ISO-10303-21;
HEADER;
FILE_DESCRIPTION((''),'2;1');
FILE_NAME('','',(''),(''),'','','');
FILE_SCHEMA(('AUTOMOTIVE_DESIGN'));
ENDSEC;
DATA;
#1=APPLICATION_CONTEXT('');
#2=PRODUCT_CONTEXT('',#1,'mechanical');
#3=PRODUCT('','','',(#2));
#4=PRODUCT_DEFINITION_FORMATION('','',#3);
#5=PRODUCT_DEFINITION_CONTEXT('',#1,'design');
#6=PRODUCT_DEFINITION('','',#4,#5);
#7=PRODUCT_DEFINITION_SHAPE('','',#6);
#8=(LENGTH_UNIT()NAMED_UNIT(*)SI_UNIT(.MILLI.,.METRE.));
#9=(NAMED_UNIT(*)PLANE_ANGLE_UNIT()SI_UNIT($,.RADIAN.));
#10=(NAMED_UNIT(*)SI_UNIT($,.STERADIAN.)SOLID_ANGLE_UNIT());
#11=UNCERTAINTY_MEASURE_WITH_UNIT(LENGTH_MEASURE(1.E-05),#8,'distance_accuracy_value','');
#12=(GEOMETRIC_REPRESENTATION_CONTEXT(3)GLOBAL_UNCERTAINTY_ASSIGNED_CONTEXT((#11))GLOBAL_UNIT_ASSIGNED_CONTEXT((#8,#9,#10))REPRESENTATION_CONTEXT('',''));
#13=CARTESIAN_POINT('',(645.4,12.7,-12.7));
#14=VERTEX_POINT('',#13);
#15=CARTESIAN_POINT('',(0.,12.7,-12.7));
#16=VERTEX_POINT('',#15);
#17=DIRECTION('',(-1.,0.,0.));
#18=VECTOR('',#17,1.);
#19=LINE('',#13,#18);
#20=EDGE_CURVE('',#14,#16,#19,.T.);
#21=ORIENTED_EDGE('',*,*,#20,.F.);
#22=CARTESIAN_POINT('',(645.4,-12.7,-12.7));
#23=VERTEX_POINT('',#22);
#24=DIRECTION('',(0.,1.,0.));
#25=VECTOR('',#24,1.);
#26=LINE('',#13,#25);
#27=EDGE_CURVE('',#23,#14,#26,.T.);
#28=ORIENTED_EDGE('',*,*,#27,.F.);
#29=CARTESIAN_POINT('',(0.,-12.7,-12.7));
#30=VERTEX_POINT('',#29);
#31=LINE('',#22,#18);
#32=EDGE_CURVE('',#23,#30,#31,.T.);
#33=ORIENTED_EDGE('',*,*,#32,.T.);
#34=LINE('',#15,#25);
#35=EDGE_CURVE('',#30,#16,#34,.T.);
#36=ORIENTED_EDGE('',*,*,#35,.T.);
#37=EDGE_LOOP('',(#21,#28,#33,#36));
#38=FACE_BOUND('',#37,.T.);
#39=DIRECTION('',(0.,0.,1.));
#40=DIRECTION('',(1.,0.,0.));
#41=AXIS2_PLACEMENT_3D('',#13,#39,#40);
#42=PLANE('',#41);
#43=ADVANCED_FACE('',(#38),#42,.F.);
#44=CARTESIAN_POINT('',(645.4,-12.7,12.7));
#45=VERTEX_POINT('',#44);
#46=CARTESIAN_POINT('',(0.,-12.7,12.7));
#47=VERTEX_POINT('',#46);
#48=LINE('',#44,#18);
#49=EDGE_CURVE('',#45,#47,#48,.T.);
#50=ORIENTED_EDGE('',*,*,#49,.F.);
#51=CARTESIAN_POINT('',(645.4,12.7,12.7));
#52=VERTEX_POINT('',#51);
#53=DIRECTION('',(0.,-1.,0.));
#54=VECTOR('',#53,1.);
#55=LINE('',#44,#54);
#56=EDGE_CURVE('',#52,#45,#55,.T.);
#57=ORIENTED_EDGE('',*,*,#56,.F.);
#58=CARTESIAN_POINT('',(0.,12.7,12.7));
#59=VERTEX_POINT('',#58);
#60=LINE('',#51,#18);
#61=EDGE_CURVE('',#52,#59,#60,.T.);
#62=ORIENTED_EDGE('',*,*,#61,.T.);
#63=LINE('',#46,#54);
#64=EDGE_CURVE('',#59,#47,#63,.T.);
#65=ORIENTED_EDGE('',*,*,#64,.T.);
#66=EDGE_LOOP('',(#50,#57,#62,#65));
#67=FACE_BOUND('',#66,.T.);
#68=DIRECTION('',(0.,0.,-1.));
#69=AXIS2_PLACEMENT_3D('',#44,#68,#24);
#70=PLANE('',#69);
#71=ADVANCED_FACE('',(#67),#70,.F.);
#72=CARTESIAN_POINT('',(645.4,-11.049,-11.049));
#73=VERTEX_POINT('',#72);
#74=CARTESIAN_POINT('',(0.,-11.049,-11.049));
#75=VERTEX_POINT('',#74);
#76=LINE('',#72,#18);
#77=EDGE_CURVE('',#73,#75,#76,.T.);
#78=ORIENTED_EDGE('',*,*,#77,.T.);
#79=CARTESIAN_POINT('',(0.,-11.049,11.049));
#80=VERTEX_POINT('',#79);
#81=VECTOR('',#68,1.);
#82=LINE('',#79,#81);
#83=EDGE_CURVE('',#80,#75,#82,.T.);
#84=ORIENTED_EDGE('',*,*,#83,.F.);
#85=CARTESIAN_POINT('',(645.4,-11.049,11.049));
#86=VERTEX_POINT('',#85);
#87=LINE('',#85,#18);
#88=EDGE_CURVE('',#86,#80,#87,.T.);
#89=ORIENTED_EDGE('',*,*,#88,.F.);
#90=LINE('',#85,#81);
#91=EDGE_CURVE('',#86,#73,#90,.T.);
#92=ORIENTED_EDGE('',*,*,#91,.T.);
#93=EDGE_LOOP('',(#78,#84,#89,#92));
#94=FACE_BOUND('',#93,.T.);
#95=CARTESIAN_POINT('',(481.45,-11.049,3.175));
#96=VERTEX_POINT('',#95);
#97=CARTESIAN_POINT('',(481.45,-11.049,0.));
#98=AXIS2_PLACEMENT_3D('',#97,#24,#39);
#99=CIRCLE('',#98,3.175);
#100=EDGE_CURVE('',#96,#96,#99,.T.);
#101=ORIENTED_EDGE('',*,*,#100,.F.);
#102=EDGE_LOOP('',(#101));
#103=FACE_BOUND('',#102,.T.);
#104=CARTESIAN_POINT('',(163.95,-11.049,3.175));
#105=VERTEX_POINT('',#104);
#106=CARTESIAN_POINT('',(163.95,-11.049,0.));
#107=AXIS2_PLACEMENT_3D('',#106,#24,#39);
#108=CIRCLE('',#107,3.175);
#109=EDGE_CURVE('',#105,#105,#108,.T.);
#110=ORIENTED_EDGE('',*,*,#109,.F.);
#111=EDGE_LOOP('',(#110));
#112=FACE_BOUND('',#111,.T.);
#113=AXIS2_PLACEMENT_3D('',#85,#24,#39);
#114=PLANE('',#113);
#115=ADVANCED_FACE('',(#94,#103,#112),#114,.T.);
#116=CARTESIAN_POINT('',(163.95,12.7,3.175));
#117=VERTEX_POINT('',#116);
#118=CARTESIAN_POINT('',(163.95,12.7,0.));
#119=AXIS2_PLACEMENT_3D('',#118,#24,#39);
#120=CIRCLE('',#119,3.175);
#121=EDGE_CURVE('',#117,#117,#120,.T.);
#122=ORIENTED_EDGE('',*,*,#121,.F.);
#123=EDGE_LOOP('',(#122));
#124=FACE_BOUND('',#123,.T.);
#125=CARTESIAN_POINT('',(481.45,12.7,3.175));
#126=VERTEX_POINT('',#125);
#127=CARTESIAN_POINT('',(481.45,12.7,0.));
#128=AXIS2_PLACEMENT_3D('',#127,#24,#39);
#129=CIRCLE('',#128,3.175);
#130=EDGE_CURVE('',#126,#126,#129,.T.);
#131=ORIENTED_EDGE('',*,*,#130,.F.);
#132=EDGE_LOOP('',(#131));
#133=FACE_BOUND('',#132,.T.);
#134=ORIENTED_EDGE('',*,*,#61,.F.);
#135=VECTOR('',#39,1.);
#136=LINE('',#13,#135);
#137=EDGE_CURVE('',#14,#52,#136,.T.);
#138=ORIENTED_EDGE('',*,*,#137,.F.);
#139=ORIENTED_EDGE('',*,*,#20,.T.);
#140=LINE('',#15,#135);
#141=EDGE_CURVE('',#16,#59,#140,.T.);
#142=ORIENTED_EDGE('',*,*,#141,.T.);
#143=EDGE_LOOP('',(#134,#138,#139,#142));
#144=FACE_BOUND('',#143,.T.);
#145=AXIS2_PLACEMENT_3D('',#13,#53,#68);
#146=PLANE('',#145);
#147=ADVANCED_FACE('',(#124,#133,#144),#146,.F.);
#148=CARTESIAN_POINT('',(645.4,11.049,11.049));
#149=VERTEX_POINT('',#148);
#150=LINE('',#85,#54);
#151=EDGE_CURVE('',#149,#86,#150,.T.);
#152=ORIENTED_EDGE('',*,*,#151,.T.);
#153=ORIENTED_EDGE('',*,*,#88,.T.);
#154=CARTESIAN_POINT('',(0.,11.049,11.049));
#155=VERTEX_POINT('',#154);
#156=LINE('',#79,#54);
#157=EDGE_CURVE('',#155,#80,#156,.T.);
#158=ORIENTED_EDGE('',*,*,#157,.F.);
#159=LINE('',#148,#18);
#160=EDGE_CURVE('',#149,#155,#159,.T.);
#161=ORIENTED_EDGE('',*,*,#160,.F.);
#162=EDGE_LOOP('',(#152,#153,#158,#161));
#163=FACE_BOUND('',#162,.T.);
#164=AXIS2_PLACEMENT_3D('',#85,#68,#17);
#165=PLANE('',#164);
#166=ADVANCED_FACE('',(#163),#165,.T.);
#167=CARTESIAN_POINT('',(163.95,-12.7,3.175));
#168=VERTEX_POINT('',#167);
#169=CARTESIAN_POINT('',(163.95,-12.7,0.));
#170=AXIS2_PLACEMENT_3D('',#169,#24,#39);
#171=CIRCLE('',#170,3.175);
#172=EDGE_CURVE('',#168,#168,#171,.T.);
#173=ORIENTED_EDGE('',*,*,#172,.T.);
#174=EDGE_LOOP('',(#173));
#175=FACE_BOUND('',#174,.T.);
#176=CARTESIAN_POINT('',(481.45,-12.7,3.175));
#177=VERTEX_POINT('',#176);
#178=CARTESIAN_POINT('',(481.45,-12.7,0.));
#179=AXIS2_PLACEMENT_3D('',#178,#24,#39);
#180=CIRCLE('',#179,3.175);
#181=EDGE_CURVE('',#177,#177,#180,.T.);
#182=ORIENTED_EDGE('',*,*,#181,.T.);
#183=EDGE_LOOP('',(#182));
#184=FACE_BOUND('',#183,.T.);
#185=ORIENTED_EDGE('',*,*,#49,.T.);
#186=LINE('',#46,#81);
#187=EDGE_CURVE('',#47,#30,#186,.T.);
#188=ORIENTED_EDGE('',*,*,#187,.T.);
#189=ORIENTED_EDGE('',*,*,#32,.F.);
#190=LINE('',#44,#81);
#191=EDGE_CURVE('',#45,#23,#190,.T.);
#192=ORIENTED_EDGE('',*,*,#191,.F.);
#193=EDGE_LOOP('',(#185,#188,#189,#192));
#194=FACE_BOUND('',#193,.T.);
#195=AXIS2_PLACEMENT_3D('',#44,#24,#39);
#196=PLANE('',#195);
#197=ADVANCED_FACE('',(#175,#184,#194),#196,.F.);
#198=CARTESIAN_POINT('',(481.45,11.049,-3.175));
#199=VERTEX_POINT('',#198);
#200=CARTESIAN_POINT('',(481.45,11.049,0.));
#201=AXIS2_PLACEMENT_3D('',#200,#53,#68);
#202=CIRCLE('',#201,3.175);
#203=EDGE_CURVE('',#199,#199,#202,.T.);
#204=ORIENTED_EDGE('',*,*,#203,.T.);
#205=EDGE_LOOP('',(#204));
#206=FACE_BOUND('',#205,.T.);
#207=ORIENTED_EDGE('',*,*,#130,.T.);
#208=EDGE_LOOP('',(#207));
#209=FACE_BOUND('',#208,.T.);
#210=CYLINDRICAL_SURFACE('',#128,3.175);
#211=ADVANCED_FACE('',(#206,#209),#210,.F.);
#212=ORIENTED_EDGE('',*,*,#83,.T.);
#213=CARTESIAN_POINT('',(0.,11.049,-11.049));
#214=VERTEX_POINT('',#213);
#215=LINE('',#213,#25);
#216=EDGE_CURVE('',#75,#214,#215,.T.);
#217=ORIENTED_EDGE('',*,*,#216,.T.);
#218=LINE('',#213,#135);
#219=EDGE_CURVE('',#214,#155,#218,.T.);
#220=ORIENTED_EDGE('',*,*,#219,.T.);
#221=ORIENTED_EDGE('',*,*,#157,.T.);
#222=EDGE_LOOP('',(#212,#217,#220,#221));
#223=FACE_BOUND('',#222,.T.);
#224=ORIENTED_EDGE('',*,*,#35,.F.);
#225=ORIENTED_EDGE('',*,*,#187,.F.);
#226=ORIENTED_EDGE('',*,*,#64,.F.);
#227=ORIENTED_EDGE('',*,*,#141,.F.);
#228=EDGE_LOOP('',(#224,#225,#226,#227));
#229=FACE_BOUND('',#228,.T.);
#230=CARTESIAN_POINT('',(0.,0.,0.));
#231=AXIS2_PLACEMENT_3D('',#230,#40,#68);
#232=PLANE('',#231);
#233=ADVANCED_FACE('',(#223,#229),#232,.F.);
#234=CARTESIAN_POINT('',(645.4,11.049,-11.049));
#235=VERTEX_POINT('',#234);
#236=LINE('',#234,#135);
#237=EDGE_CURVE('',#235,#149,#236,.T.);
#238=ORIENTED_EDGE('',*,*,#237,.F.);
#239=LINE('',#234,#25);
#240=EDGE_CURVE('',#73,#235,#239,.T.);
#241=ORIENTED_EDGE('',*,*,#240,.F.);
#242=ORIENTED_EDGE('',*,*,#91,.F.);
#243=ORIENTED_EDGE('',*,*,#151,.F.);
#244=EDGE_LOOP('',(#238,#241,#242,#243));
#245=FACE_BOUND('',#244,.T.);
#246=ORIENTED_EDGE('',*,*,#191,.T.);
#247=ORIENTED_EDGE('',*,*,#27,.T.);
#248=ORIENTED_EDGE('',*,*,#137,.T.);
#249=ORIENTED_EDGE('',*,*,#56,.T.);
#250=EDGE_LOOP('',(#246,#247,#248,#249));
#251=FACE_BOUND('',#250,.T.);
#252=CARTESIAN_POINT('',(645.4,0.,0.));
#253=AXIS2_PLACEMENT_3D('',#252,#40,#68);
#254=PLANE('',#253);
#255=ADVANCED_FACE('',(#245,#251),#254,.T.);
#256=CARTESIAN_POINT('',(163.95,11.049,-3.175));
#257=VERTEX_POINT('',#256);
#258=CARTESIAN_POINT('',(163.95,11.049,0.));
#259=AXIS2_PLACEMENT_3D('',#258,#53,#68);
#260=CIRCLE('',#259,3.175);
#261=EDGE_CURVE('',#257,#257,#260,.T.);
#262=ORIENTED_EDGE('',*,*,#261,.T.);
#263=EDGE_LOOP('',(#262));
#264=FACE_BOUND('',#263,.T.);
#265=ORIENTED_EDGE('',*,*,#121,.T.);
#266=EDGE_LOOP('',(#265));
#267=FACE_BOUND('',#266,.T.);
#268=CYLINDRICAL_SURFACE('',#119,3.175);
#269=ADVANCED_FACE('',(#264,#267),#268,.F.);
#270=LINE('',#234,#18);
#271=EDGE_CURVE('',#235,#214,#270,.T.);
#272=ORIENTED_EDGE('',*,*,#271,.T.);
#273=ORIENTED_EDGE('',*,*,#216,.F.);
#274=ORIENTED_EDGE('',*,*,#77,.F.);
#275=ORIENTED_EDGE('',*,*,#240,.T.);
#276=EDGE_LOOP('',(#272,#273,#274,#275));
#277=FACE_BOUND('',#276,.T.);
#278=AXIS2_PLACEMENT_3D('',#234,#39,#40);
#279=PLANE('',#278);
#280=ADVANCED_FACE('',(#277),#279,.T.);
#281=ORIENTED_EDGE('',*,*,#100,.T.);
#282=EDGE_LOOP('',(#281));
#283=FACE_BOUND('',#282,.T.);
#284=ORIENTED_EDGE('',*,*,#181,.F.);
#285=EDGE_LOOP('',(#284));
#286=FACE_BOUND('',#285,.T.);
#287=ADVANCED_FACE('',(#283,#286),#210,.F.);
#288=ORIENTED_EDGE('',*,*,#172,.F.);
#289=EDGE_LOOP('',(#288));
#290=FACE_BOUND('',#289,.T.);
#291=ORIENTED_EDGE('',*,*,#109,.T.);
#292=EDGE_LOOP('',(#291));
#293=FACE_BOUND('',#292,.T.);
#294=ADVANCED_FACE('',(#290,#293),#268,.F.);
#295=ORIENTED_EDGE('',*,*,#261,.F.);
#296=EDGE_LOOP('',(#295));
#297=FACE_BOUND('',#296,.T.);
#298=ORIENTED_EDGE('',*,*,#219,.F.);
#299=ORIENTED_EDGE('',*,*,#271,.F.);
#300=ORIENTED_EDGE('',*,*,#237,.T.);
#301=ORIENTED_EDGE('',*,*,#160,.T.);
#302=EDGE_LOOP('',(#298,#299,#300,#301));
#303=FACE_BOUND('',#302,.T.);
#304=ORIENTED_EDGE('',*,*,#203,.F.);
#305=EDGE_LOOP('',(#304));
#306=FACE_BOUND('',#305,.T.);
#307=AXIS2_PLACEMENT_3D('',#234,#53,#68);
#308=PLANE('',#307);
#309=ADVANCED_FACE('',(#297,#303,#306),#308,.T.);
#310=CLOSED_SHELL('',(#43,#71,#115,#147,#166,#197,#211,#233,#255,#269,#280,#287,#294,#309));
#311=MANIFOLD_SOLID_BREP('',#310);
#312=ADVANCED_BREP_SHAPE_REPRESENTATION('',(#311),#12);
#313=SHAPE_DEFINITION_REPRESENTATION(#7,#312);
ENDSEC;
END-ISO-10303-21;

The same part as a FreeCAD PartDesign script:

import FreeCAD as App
import Part
import Sketcher
from FreeCAD import Vector
Q = App.Units.Quantity


def add_polygon(sketch, points):
    """Adds a closed chain of lines whose ends are joined by coincident constraints."""
    first, n = sketch.GeometryCount, len(points)
    for a, b in zip(points, points[1:] + points[:1]):
        sketch.addGeometry(Part.LineSegment(App.Vector(*a, 0), App.Vector(*b, 0)), False)
    for i in range(n):
        sketch.addConstraint(Sketcher.Constraint("Coincident", first + i, 2, first + (i + 1) % n, 1))

doc = App.newDocument("Part")
body = doc.addObject("PartDesign::Body", "Body")

# Sketch on YZ plane
sketch1 = body.newObject("Sketcher::SketchObject", "Sketch")
sketch1.AttachmentSupport = (doc.getObject("YZ_Plane"), [""])
sketch1.MapMode = "FlatFace"
add_polygon(sketch1, [(13, 13), (-13, 13), (-13, -13), (13, -13)])  # lines 0-3
add_polygon(sketch1, [(-11, -11), (-11, 11), (11, 11), (11, -11)])  # lines 4-7
sketch1.addConstraint([
    Sketcher.Constraint("Horizontal", 0),
    Sketcher.Constraint("Vertical", 1),
    Sketcher.Constraint("Horizontal", 2),
    Sketcher.Constraint("Vertical", 3),
    Sketcher.Constraint("Vertical", 4),
    Sketcher.Constraint("Horizontal", 5),
    Sketcher.Constraint("Vertical", 6),
    Sketcher.Constraint("Horizontal", 7),
    Sketcher.Constraint("Symmetric", 0, 2, 2, 2, -1, 1),
    Sketcher.Constraint("Symmetric", 4, 2, 6, 2, -1, 1),
    Sketcher.Constraint("Equal", 2, 1),
    Sketcher.Constraint("Equal", 7, 4),
    Sketcher.Constraint("DistanceX", 0, 2, 0, 1, Q("1 in")),
    Sketcher.Constraint("DistanceX", 5, 1, 5, 2, Q("0.87 in")),
])
pad1 = body.newObject("PartDesign::Pad", "Pad")
pad1.Profile = sketch1
pad1.Length = 645.4

# Sketch on XZ plane
sketch2 = body.newObject("Sketcher::SketchObject", "Sketch001")
sketch2.AttachmentSupport = (doc.getObject("XZ_Plane"), [""])
sketch2.MapMode = "FlatFace"
sketch2.AttachmentOffset = App.Placement(Vector(0, 0, -0.5 * 25.4), App.Rotation())
sketch2.addGeometry([
    Part.Circle(Vector(481.4, 0, 0), Vector(0, 0, 1), 3.2),
    Part.Circle(Vector(163.9, 0, 0), Vector(0, 0, 1), 3.2),
], False)
sketch2.addConstraint([
    Sketcher.Constraint("Equal", 0, 1),
    Sketcher.Constraint("PointOnObject", 0, 3, -1),
    Sketcher.Constraint("PointOnObject", 1, 3, -1),
    Sketcher.Constraint("Diameter", 0, Q("0.25 in")),
    Sketcher.Constraint("DistanceX", 1, 3, 0, 3, Q("12.5 in")),
    Sketcher.Constraint("DistanceX", -1, 1, 0, 3, 481.45),
])
doc.recompute()
hole = body.newObject("PartDesign::Hole", "Hole")
hole.Profile = sketch2
hole.ThreadType = "None"
hole.Diameter = Q("0.25 in")
hole.DepthType = "ThroughAll"
hole.Reversed = True

doc.recompute()
